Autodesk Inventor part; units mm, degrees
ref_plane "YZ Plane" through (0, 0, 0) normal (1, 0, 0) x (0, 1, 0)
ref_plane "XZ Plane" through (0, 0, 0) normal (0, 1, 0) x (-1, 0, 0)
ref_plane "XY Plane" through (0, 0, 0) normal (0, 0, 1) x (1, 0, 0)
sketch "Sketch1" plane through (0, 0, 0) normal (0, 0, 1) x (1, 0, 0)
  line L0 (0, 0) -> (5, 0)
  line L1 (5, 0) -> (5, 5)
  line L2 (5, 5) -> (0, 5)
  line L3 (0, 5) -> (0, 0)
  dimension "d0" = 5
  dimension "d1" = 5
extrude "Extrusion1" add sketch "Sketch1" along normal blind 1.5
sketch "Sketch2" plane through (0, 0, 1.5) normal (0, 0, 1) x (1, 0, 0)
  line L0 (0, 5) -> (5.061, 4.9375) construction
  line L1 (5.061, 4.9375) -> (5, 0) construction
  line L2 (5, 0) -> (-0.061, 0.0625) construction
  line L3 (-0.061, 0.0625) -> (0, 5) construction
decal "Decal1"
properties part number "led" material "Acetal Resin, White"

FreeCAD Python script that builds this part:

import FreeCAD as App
import Part
import Sketcher

V = App.Vector
Q = App.Units.Quantity

doc = App.newDocument("Part")
body = doc.addObject("PartDesign::Body", "Body")

sketch1 = body.newObject("Sketcher::SketchObject", "Sketch")
sketch1.AttachmentSupport = (doc.getObject("XY_Plane"), [""])
sketch1.MapMode = "FlatFace"
sketch1.addGeometry([
    Part.LineSegment(V(0, 5, 0), V(0, 0, 0)),
    Part.LineSegment(V(0, 0, 0), V(5, 0, 0)),
    Part.LineSegment(V(5, 0, 0), V(5, 5, 0)),
    Part.LineSegment(V(5, 5, 0), V(0, 5, 0)),
], False)
sketch1.addConstraint([
    Sketcher.Constraint("Coincident", 0, 2, 1, 1),
    Sketcher.Constraint("Coincident", 1, 2, 2, 1),
    Sketcher.Constraint("Coincident", 2, 2, 3, 1),
    Sketcher.Constraint("Coincident", 3, 2, 0, 1),
    Sketcher.Constraint("Vertical", 0),
    Sketcher.Constraint("Horizontal", 1),
    Sketcher.Constraint("Vertical", 2),
    Sketcher.Constraint("Horizontal", 3),
    Sketcher.Constraint("Coincident", 0, 2, -1, 1),
    Sketcher.Constraint("Equal", 3, 0),
    Sketcher.Constraint("DistanceX", 1, 1, 1, 2, Q("5 mm")),
])
pad1 = body.newObject("PartDesign::Pad", "Pad")
pad1.Profile = sketch1
pad1.Length = 1.5

doc.recompute()
